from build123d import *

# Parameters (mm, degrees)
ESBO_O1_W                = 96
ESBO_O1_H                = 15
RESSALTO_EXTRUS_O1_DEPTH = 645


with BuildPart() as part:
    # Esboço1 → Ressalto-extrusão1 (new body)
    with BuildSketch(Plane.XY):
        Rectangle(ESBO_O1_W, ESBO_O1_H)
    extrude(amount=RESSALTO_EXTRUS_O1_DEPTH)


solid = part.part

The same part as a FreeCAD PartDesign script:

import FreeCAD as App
import Part
import Sketcher


def add_polygon(sketch, points):
    """Adds a closed chain of lines whose ends are joined by coincident constraints."""
    first, n = sketch.GeometryCount, len(points)
    for a, b in zip(points, points[1:] + points[:1]):
        sketch.addGeometry(Part.LineSegment(App.Vector(*a, 0), App.Vector(*b, 0)), False)
    for i in range(n):
        sketch.addConstraint(Sketcher.Constraint("Coincident", first + i, 2, first + (i + 1) % n, 1))

doc = App.newDocument("Part")
body = doc.addObject("PartDesign::Body", "Body")

# Sketch on XY plane
sketch1 = doc.addObject("Sketcher::SketchObject", "Sketch")
body.addObject(sketch1)
sketch1.AttachmentSupport = (doc.XY_Plane, [""])
sketch1.MapMode = "FlatFace"
add_polygon(sketch1, [(-48, 8), (-48, -8), (48, -8), (48, 8)])  # lines 0-3
sketch1.addConstraint([
    Sketcher.Constraint("Vertical", 0),
    Sketcher.Constraint("Horizontal", 1),
    Sketcher.Constraint("Vertical", 2),
    Sketcher.Constraint("Horizontal", 3),
    Sketcher.Constraint("Symmetric", 0, 2, 2, 2, -1, 1),
    Sketcher.Constraint("DistanceX", 1, 1, 1, 2, 96.0),
    Sketcher.Constraint("DistanceY", 0, 2, 0, 1, 15.0),
])
pad1 = doc.addObject("PartDesign::Pad", "Pad")
body.addObject(pad1)
pad1.Profile = sketch1
pad1.Length = 645

doc.recompute()
